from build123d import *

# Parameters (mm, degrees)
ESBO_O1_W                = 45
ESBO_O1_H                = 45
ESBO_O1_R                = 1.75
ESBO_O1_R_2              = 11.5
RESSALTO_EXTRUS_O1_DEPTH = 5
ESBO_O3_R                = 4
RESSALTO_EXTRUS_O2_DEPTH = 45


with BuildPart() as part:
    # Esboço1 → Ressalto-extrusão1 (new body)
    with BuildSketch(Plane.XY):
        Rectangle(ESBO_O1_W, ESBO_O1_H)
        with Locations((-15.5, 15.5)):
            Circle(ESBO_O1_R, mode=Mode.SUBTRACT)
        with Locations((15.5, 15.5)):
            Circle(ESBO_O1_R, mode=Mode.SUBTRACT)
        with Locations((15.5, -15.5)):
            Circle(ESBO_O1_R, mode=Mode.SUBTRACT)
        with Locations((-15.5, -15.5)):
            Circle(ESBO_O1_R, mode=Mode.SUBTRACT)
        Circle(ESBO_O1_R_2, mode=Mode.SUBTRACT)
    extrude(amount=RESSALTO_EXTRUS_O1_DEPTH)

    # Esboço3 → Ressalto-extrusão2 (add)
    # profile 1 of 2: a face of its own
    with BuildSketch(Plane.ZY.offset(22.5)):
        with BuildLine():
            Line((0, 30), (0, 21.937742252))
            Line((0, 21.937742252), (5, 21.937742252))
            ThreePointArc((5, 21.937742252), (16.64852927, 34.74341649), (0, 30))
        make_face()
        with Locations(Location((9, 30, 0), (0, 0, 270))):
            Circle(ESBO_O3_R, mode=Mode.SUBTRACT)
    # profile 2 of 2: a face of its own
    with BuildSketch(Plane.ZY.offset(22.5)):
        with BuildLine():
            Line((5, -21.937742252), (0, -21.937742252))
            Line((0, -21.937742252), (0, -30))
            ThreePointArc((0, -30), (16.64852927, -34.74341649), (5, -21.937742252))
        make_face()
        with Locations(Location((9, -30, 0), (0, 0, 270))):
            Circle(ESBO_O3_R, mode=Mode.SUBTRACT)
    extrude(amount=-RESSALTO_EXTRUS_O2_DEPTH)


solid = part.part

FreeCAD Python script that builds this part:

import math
import FreeCAD as App
import Part
import Sketcher
from FreeCAD import Vector
Q = App.Units.Quantity


def add_polygon(sketch, points):
    """Adds a closed chain of lines whose ends are joined by coincident constraints."""
    first, n = sketch.GeometryCount, len(points)
    for a, b in zip(points, points[1:] + points[:1]):
        sketch.addGeometry(Part.LineSegment(App.Vector(*a, 0), App.Vector(*b, 0)), False)
    for i in range(n):
        sketch.addConstraint(Sketcher.Constraint("Coincident", first + i, 2, first + (i + 1) % n, 1))

doc = App.newDocument("Part")
body = doc.addObject("PartDesign::Body", "Body")

sketch1 = body.newObject("Sketcher::SketchObject", "Sketch")
sketch1.AttachmentSupport = (doc.getObject("XY_Plane"), [""])
sketch1.MapMode = "FlatFace"
add_polygon(sketch1, [(-22.5, 22.5), (-22.5, -22.5), (22.5, -22.5), (22.5, 22.5)])
sketch1.addGeometry(Part.Circle(Vector(-15.5, -15.5, 0), Vector(0, 0, 1), 1.8), False)
sketch1.addGeometry(Part.Circle(Vector(15.5, -15.5, 0), Vector(0, 0, 1), 1.8), False)
sketch1.addGeometry(Part.Circle(Vector(-15.5, 15.5, 0), Vector(0, 0, 1), 1.8), False)
sketch1.addGeometry(Part.Circle(Vector(0, 0, 0), Vector(0, 0, 1), 11.5), False)
sketch1.addGeometry(Part.Circle(Vector(15.5, 15.5, 0), Vector(0, 0, 1), 1.8), False)
sketch1.addConstraint([
    Sketcher.Constraint("Vertical", 0),
    Sketcher.Constraint("Horizontal", 1),
    Sketcher.Constraint("Vertical", 2),
    Sketcher.Constraint("Horizontal", 3),
    Sketcher.Constraint("Coincident", 7, 3, -1, 1),
    Sketcher.Constraint("Equal", 4, 5),
    Sketcher.Constraint("Equal", 5, 6),
    Sketcher.Constraint("Equal", 6, 8),
    Sketcher.Constraint("Symmetric", 5, 3, 6, 3, -1, 1),
    Sketcher.Constraint("Symmetric", 4, 3, 8, 3, -1, 1),
    Sketcher.Constraint("Symmetric", 0, 2, 2, 2, -1, 1),
    Sketcher.Constraint("Symmetric", 4, 3, 5, 3, -2),
    Sketcher.Constraint("Equal", 3, 0),
    Sketcher.Constraint("Diameter", 7, Q("23 mm")),
    Sketcher.Constraint("Diameter", 4, Q("3.5 mm")),
    Sketcher.Constraint("DistanceX", 1, 1, 1, 2, Q("45 mm")),
    Sketcher.Constraint("DistanceX", 4, 3, 5, 3, Q("31 mm")),
    Sketcher.Constraint("DistanceY", 4, 3, 6, 3, Q("31 mm")),
])
pad1 = body.newObject("PartDesign::Pad", "Pad")
pad1.Profile = sketch1
pad1.Length = 5

sketch2 = body.newObject("Sketcher::SketchObject", "Sketch001")
sketch2.AttachmentSupport = (doc.getObject("YZ_Plane"), [""])
sketch2.MapMode = "FlatFace"
sketch2.AttachmentOffset = App.Placement(Vector(0, 0, -22.5), App.Rotation())
sketch2.addGeometry([
    Part.LineSegment(Vector(30, 0, 0), Vector(21.9, 0, 0)),
    Part.LineSegment(Vector(21.9, 0, 0), Vector(21.9, 5, 0)),
    Part.ArcOfCircle(Part.Circle(Vector(30, 9, 0), Vector(0, 0, 1), 9), math.radians(-90), math.radians(206)),
    Part.Circle(Vector(30, 9, 0), Vector(0, 0, 1), 4),
    Part.LineSegment(Vector(-21.9, 5, 0), Vector(-21.9, 0, 0)),
    Part.LineSegment(Vector(-21.9, 0, 0), Vector(-30, 0, 0)),
    Part.ArcOfCircle(Part.Circle(Vector(-30, 9, 0), Vector(0, 0, 1), 9), math.radians(-26), math.radians(270)),
    Part.Circle(Vector(-30, 9, 0), Vector(0, 0, 1), 4),
], False)
sketch2.addConstraint([
    Sketcher.Constraint("Coincident", 0, 2, 1, 1),
    Sketcher.Constraint("Coincident", 1, 2, 2, 2),
    Sketcher.Constraint("Tangent", 2, 1, 0, 1),
    Sketcher.Constraint("Coincident", 4, 2, 5, 1),
    Sketcher.Constraint("Tangent", 5, 2, 6, 2),
    Sketcher.Constraint("Coincident", 6, 1, 4, 1),
    Sketcher.Constraint("Horizontal", 0),
    Sketcher.Constraint("Vertical", 1),
    Sketcher.Constraint("Vertical", 4),
    Sketcher.Constraint("Horizontal", 5),
    Sketcher.Constraint("Coincident", 3, 3, 2, 3),
    Sketcher.Constraint("Coincident", 7, 3, 6, 3),
    Sketcher.Constraint("Equal", 2, 6),
    Sketcher.Constraint("Equal", 3, 7),
    Sketcher.Constraint("Symmetric", 0, 2, 4, 2, -1, 1),
    Sketcher.Constraint("Symmetric", 2, 3, 6, 3, -2),
    Sketcher.Constraint("Diameter", 3, Q("8 mm")),
    Sketcher.Constraint("Radius", 2, Q("9 mm")),
    Sketcher.Constraint("DistanceY", 1, 1, 1, 2, Q("5 mm")),
    Sketcher.Constraint("DistanceX", -1, 1, 2, 3, Q("30 mm")),
])
pad2 = body.newObject("PartDesign::Pad", "Pad001")
pad2.Profile = sketch2
pad2.Length = 45

doc.recompute()
